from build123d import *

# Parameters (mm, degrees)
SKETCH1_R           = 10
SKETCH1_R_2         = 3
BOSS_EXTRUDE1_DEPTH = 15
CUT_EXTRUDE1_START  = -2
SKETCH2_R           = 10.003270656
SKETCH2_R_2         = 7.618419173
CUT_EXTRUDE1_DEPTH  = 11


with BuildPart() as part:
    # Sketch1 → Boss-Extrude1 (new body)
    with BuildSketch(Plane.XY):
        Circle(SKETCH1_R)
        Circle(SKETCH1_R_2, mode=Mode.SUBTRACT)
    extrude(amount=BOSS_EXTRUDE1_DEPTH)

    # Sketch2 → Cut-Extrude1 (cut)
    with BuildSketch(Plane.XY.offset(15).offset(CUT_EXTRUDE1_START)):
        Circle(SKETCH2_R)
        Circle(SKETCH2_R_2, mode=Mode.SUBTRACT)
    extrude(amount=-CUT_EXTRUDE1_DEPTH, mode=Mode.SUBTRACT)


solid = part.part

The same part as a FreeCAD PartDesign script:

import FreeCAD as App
import Part
import Sketcher

V = App.Vector
Q = App.Units.Quantity

doc = App.newDocument("Part")
body = doc.addObject("PartDesign::Body", "Body")

sketch1 = body.newObject("Sketcher::SketchObject", "Sketch")
sketch1.AttachmentSupport = (doc.getObject("XY_Plane"), [""])
sketch1.MapMode = "FlatFace"
sketch1.addGeometry([
    Part.Circle(V(0, 0, 0), V(0, 0, 1), 10),
    Part.Circle(V(0, 0, 0), V(0, 0, 1), 3),
], False)
sketch1.addConstraint([
    Sketcher.Constraint("Coincident", 0, 3, -1, 1),
    Sketcher.Constraint("Coincident", 1, 3, -1, 1),
    Sketcher.Constraint("Diameter", 0, Q("20 mm")),
    Sketcher.Constraint("Diameter", 1, Q("6 mm")),
])
pad1 = body.newObject("PartDesign::Pad", "Pad")
pad1.Profile = sketch1
pad1.Length = 15

sketch2 = body.newObject("Sketcher::SketchObject", "Sketch001")
sketch2.AttachmentSupport = (doc.getObject("XY_Plane"), [""])
sketch2.MapMode = "FlatFace"
sketch2.AttachmentOffset = App.Placement(V(0, 0, 13), App.Rotation())
sketch2.addGeometry([
    Part.Circle(V(0, 0, 0), V(0, 0, 1), 10),
    Part.Circle(V(0, 0, 0), V(0, 0, 1), 8),
], False)
sketch2.addConstraint([
    Sketcher.Constraint("Coincident", 0, 3, -1, 1),
    Sketcher.Constraint("Coincident", 1, 3, -1, 1),
    Sketcher.Constraint("Diameter", 0, Q("20.006541 mm")),
    Sketcher.Constraint("Diameter", 1, Q("15.236838 mm")),
])
pocket1 = body.newObject("PartDesign::Pocket", "Pocket")
pocket1.Profile = sketch2
pocket1.Length = 11

doc.recompute()
